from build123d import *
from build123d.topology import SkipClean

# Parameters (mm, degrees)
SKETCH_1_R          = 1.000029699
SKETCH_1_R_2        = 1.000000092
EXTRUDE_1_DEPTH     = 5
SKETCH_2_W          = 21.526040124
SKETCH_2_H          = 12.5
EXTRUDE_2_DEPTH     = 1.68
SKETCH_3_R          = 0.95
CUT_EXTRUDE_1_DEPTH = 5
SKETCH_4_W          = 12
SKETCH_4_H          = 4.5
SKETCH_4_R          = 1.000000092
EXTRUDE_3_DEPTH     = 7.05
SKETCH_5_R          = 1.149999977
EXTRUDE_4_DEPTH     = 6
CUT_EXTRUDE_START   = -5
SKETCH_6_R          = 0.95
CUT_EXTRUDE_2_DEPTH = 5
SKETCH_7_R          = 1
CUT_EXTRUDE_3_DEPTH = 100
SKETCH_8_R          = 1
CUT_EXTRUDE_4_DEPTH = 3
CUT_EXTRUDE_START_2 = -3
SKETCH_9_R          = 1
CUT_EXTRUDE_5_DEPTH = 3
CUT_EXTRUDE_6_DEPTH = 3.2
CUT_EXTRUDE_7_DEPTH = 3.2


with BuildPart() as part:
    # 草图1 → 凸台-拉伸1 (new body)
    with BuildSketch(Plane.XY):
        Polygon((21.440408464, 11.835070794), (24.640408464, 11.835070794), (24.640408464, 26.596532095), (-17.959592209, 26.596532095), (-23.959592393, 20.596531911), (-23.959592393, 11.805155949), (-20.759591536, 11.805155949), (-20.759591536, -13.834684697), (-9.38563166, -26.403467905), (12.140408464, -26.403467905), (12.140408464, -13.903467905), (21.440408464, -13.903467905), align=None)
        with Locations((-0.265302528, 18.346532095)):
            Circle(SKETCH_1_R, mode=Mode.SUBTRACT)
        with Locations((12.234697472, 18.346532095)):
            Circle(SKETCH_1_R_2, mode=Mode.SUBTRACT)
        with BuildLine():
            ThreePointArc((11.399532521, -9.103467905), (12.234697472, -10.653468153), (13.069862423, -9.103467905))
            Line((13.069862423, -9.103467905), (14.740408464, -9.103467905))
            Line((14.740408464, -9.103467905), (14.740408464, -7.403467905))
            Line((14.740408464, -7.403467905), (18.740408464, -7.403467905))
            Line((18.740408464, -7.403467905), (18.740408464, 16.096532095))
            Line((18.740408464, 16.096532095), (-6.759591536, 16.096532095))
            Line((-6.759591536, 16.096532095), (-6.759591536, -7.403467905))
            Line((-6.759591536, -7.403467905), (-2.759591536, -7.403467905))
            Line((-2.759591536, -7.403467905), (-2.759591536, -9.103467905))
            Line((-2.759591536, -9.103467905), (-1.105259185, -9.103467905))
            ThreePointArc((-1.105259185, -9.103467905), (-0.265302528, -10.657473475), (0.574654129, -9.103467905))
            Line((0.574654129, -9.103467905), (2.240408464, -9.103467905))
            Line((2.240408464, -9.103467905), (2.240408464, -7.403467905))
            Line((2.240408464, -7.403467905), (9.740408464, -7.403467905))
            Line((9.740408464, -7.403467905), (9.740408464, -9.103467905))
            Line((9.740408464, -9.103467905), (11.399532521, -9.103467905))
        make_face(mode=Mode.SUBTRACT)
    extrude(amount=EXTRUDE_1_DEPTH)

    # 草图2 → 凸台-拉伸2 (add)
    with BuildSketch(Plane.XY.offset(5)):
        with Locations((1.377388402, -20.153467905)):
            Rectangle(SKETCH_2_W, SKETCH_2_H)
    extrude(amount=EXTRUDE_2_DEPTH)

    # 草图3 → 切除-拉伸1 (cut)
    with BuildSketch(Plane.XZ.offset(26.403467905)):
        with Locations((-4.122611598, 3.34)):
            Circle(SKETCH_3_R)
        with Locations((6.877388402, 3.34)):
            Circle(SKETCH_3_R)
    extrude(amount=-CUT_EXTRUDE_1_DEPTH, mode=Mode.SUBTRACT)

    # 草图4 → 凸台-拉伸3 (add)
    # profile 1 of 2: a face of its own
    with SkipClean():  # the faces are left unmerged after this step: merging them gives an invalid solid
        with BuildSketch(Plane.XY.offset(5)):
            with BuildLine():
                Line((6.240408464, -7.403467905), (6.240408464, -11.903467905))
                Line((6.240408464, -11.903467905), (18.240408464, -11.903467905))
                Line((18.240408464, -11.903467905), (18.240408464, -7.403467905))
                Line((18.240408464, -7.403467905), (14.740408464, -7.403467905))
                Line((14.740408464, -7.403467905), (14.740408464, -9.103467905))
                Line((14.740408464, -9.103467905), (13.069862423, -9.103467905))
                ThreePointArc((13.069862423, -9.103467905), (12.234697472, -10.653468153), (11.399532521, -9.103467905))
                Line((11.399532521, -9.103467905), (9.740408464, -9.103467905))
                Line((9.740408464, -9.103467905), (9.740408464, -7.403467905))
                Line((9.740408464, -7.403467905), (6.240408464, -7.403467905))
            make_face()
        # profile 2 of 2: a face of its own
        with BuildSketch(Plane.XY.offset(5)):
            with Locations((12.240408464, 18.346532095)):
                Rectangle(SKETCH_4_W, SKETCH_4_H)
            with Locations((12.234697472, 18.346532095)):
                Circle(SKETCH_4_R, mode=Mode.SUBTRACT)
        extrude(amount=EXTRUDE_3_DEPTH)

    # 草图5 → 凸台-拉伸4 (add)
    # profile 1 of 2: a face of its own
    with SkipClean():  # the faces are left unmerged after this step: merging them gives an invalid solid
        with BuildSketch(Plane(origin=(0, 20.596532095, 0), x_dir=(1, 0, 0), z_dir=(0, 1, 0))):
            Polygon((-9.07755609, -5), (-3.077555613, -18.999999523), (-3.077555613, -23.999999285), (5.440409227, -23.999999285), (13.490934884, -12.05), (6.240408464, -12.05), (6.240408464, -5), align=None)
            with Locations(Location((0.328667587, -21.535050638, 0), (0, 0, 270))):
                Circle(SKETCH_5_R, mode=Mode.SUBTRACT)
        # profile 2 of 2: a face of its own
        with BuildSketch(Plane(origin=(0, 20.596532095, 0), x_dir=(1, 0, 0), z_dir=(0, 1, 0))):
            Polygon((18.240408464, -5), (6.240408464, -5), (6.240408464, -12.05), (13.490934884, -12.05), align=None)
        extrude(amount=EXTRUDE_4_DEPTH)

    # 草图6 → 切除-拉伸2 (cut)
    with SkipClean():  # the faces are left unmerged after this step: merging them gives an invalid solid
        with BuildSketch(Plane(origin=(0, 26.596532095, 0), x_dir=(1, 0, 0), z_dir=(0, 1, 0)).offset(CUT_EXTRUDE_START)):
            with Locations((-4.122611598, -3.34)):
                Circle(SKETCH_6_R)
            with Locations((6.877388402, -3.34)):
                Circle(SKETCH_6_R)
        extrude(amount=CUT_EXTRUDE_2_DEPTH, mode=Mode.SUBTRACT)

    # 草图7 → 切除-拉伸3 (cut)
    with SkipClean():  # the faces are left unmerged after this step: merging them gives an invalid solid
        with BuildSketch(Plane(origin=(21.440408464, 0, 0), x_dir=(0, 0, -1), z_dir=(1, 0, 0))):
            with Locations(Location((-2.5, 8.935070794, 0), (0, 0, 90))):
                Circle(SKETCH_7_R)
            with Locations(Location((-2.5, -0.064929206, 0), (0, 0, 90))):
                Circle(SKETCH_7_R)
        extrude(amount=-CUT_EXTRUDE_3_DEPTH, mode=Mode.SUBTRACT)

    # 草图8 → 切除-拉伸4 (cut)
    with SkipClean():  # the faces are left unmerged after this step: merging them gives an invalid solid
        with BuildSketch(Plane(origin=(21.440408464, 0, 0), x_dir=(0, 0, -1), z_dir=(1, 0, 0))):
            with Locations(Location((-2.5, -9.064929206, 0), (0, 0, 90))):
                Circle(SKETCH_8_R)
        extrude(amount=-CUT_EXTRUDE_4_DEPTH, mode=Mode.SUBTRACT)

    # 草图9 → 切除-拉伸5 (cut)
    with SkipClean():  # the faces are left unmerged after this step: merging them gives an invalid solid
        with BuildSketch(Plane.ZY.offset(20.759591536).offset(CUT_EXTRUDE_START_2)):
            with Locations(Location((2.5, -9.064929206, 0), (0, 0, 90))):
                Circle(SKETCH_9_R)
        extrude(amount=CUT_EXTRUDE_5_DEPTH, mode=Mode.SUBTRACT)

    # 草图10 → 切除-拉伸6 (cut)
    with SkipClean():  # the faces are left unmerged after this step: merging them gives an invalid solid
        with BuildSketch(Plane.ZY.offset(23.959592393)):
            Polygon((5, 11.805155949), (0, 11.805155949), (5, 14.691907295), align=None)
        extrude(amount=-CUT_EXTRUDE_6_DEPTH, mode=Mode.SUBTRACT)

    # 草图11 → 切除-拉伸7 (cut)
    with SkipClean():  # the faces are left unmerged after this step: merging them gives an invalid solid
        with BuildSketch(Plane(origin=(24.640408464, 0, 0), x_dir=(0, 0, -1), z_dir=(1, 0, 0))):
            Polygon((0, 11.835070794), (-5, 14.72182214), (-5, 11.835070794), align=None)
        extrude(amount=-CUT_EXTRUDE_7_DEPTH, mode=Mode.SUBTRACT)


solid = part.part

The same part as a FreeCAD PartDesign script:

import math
import FreeCAD as App
import Part
import Sketcher
from FreeCAD import Vector
Q = App.Units.Quantity


def add_polygon(sketch, points):
    """Adds a closed chain of lines whose ends are joined by coincident constraints."""
    first, n = sketch.GeometryCount, len(points)
    for a, b in zip(points, points[1:] + points[:1]):
        sketch.addGeometry(Part.LineSegment(App.Vector(*a, 0), App.Vector(*b, 0)), False)
    for i in range(n):
        sketch.addConstraint(Sketcher.Constraint("Coincident", first + i, 2, first + (i + 1) % n, 1))

doc = App.newDocument("Part")
params = doc.addObject("Spreadsheet::Sheet", "Params")
for row, (alias, value) in enumerate([
    ("sketch1_diameter", "2 mm"),
    ("sketch1_width", "4 mm"),
    ("sketch1_width2", "3.2 mm"),
    ("sketch1_width3", "42.600001 mm"),
    ("sketch1_width4", "9.3 mm"),
    ("pad1_length", "5 mm"),
    ("sketch2_height", "12.5 mm"),
    ("pad2_length", "1.68 mm"),
    ("sketch3_diameter", "1.9 mm"),
    ("pocket1_length", "5 mm"),
    ("sketch4_diameter", "2 mm"),
    ("sketch4_width", "12 mm"),
    ("sketch4_width2", "3.5 mm"),
    ("sketch4_height", "4.5 mm"),
    ("sketch4_height2", "1.7 mm"),
    ("pad3_length", "7.05 mm"),
    ("sketch5_diameter", "2.3 mm"),
    ("sketch5_height", "5 mm"),
    ("pad4_length", "6 mm"),
    ("sketch6_diameter", "1.9 mm"),
    ("pocket2_length", "5 mm"),
    ("sketch7_diameter", "2 mm"),
    ("pocket3_length", "100 mm"),
    ("sketch8_diameter", "2 mm"),
    ("pocket4_length", "3 mm"),
    ("sketch9_diameter", "2 mm"),
    ("pocket5_length", "3 mm"),
    ("sketch10_height", "5 mm"),
    ("pocket6_length", "3.2 mm"),
    ("sketch11_height", "5 mm"),
    ("pocket7_length", "3.2 mm"),
], start=1):
    params.set(f"A{row}", alias)
    params.set(f"B{row}", "=" + value)
    params.setAlias(f"B{row}", alias)

body = doc.addObject("PartDesign::Body", "Body")

# Sketch on XY plane
sketch1 = body.newObject("Sketcher::SketchObject", "Sketch")
sketch1.AttachmentSupport = (doc.getObject("XY_Plane"), [""])
sketch1.MapMode = "FlatFace"
add_polygon(sketch1, [(21.440408, 11.835071), (24.640408, 11.835071), (24.640408, 26.596532), (-17.959592, 26.596532), (-23.959592, 20.596532), (-23.959592, 11.805156), (-20.759592, 11.805156), (-20.759592, -13.834685), (-9.385632, -26.403468), (12.140408, -26.403468), (12.140408, -13.903468), (21.440408, -13.903468)])  # lines 0-11
sketch1.addGeometry(Part.ArcOfCircle(Part.Circle(Vector(12.234697, -9.653468, 0), Vector(0, 0, 1), 1), math.radians(146.632996), math.radians(393.367004)), False)  # 12
sketch1.addGeometry(Part.LineSegment(Vector(11.399533, -9.103468, 0), Vector(9.740408, -9.103468, 0)), False)  # 13
sketch1.addGeometry(Part.LineSegment(Vector(9.740408, -9.103468, 0), Vector(9.740408, -7.403468, 0)), False)  # 14
sketch1.addGeometry(Part.LineSegment(Vector(9.740408, -7.403468, 0), Vector(2.240408, -7.403468, 0)), False)  # 15
sketch1.addGeometry(Part.LineSegment(Vector(2.240408, -7.403468, 0), Vector(2.240408, -9.103468, 0)), False)  # 16
sketch1.addGeometry(Part.LineSegment(Vector(2.240408, -9.103468, 0), Vector(0.574654, -9.103468, 0)), False)  # 17
sketch1.addGeometry(Part.ArcOfCircle(Part.Circle(Vector(-0.265303, -9.653468, 0), Vector(0, 0, 1), 1.004006), math.radians(146.783394), math.radians(393.216606)), False)  # 18
sketch1.addGeometry(Part.LineSegment(Vector(-1.105259, -9.103468, 0), Vector(-2.759592, -9.103468, 0)), False)  # 19
sketch1.addGeometry(Part.LineSegment(Vector(-2.759592, -9.103468, 0), Vector(-2.759592, -7.403468, 0)), False)  # 20
sketch1.addGeometry(Part.LineSegment(Vector(-2.759592, -7.403468, 0), Vector(-6.759592, -7.403468, 0)), False)  # 21
sketch1.addGeometry(Part.LineSegment(Vector(-6.759592, -7.403468, 0), Vector(-6.759592, 16.096532, 0)), False)  # 22
sketch1.addGeometry(Part.LineSegment(Vector(-6.759592, 16.096532, 0), Vector(18.740408, 16.096532, 0)), False)  # 23
sketch1.addGeometry(Part.LineSegment(Vector(18.740408, 16.096532, 0), Vector(18.740408, -7.403468, 0)), False)  # 24
sketch1.addGeometry(Part.LineSegment(Vector(18.740408, -7.403468, 0), Vector(14.740408, -7.403468, 0)), False)  # 25
sketch1.addGeometry(Part.LineSegment(Vector(14.740408, -7.403468, 0), Vector(14.740408, -9.103468, 0)), False)  # 26
sketch1.addGeometry(Part.LineSegment(Vector(14.740408, -9.103468, 0), Vector(13.069862, -9.103468, 0)), False)  # 27
sketch1.addGeometry(Part.Circle(Vector(-0.265303, 18.346532, 0), Vector(0, 0, 1), 1.00003), False)  # 28
sketch1.addGeometry(Part.Circle(Vector(12.234697, 18.346532, 0), Vector(0, 0, 1), 1), False)  # 29
sketch1.addConstraint([
    Sketcher.Constraint("Coincident", 12, 1, 13, 1),
    Sketcher.Constraint("Coincident", 13, 2, 14, 1),
    Sketcher.Constraint("Coincident", 14, 2, 15, 1),
    Sketcher.Constraint("Coincident", 15, 2, 16, 1),
    Sketcher.Constraint("Coincident", 16, 2, 17, 1),
    Sketcher.Constraint("Coincident", 17, 2, 18, 2),
    Sketcher.Constraint("Coincident", 18, 1, 19, 1),
    Sketcher.Constraint("Coincident", 19, 2, 20, 1),
    Sketcher.Constraint("Coincident", 20, 2, 21, 1),
    Sketcher.Constraint("Coincident", 21, 2, 22, 1),
    Sketcher.Constraint("Coincident", 22, 2, 23, 1),
    Sketcher.Constraint("Coincident", 23, 2, 24, 1),
    Sketcher.Constraint("Coincident", 24, 2, 25, 1),
    Sketcher.Constraint("Coincident", 25, 2, 26, 1),
    Sketcher.Constraint("Coincident", 26, 2, 27, 1),
    Sketcher.Constraint("Coincident", 27, 2, 12, 2),
    Sketcher.Constraint("Horizontal", 0),
    Sketcher.Constraint("Vertical", 1),
    Sketcher.Constraint("Horizontal", 2),
    Sketcher.Constraint("Vertical", 4),
    Sketcher.Constraint("Horizontal", 5),
    Sketcher.Constraint("Vertical", 6),
    Sketcher.Constraint("Horizontal", 8),
    Sketcher.Constraint("Vertical", 9),
    Sketcher.Constraint("Horizontal", 10),
    Sketcher.Constraint("Vertical", 11),
    Sketcher.Constraint("Horizontal", 13),
    Sketcher.Constraint("Vertical", 14),
    Sketcher.Constraint("Horizontal", 15),
    Sketcher.Constraint("Vertical", 16),
    Sketcher.Constraint("Horizontal", 17),
    Sketcher.Constraint("Horizontal", 19),
    Sketcher.Constraint("Vertical", 20),
    Sketcher.Constraint("Horizontal", 21),
    Sketcher.Constraint("Vertical", 22),
    Sketcher.Constraint("Horizontal", 23),
    Sketcher.Constraint("Vertical", 24),
    Sketcher.Constraint("Horizontal", 25),
    Sketcher.Constraint("Vertical", 26),
    Sketcher.Constraint("Horizontal", 27),
    Sketcher.Constraint("Equal", 12, 29),
    Sketcher.Constraint("Horizontal", 12, 3, 18, 3),
    Sketcher.Constraint("Horizontal", 28, 3, 29, 3),
    Sketcher.Constraint("Horizontal", 13, 2, 16, 2),
    Sketcher.Constraint("Horizontal", 17, 2, 18, 1),
    Sketcher.Constraint("Horizontal", 15, 2, 20, 2),
    Sketcher.Constraint("Horizontal", 21, 2, 24, 2),
    Sketcher.Constraint("Horizontal", 19, 2, 26, 2),
    Sketcher.Constraint("Vertical", 18, 3, 28, 3),
    Sketcher.Constraint("Vertical", 12, 3, 29, 3),
    Sketcher.Constraint("Equal", 0, 5),
    Sketcher.Constraint("Equal", 21, 25),
    Sketcher.Constraint("Diameter", 29, Q("2 mm")),
    Sketcher.Constraint("DistanceX", 21, 2, 21, 1, Q("4 mm")),
    Sketcher.Constraint("Angle", 3, Q("-135 deg")),
    Sketcher.Constraint("DistanceX", 0, 1, 0, 2, Q("3.2 mm")),
    Sketcher.Constraint("DistanceX", 2, 2, 2, 1, Q("42.600001 mm")),
    Sketcher.Constraint("DistanceX", 10, 1, 10, 2, Q("9.3 mm")),
    Sketcher.Constraint("DistanceX", 15, 2, 15, 1, Q("7.5 mm")),
    Sketcher.Constraint("DistanceX", 23, 1, 23, 2, Q("25.5 mm")),
    Sketcher.Constraint("DistanceY", 9, 1, 9, 2, Q("12.5 mm")),
    Sketcher.Constraint("DistanceY", 14, 1, 14, 2, Q("1.7 mm")),
    Sketcher.Constraint("DistanceY", 22, 1, 22, 2, Q("23.5 mm")),
    Sketcher.Constraint("DistanceY", 18, 3, 28, 3, Q("28 mm")),
    Sketcher.Constraint("DistanceX", 3, 2, 2, 2, Q("6 mm")),
    Sketcher.Constraint("DistanceX", 19, 2, 16, 2, Q("5 mm")),
    Sketcher.Constraint("DistanceX", 5, 2, 22, 2, Q("14 mm")),
    Sketcher.Constraint("DistanceX", 18, 3, 12, 3, Q("12.5 mm")),
    Sketcher.Constraint("DistanceY", 9, 2, 12, 1, Q("4.8 mm")),
    Sketcher.Constraint("DistanceY", 22, 2, 2, 2, Q("10.5 mm")),
    Sketcher.Constraint("Diameter", 28, Q("2.000059 mm")),
    Sketcher.Constraint("DistanceY", 29, 3, 1, 2, Q("8.25 mm")),
    Sketcher.Constraint("Radius", 18, Q("1.004006 mm")),
    Sketcher.Constraint("DistanceX", 8, 1, 8, 2, Q("21.52604 mm")),
    Sketcher.Constraint("DistanceY", 1, 1, 1, 2, Q("14.761461 mm")),
    Sketcher.Constraint("DistanceY", 6, 2, 6, 1, Q("25.639841 mm")),
    Sketcher.Constraint("DistanceX", 13, 2, 13, 1, Q("1.659124 mm")),
    Sketcher.Constraint("DistanceY", 4, 2, 4, 1, Q("8.791376 mm")),
    Sketcher.Constraint("DistanceX", -1, 1, 0, 2, Q("24.640408 mm")),
    Sketcher.Constraint("DistanceY", -1, 1, 0, 2, Q("11.835071 mm")),
])
sketch1.setExpression("Constraints[64]", "Params.sketch1_diameter")
sketch1.setExpression("Constraints[65]", "Params.sketch1_width")
sketch1.setExpression("Constraints[67]", "Params.sketch1_width2")
sketch1.setExpression("Constraints[68]", "Params.sketch1_width3")
sketch1.setExpression("Constraints[69]", "Params.sketch1_width4")
pad1 = body.newObject("PartDesign::Pad", "Pad")
pad1.Profile = sketch1
pad1.setExpression("Length", "Params.pad1_length")

# Sketch on XY plane
sketch2 = body.newObject("Sketcher::SketchObject", "Sketch001")
sketch2.AttachmentSupport = (doc.getObject("XY_Plane"), [""])
sketch2.MapMode = "FlatFace"
sketch2.AttachmentOffset = App.Placement(Vector(0, 0, 5), App.Rotation())
add_polygon(sketch2, [(-9.385632, -13.903468), (-9.385632, -26.403468), (12.140408, -26.403468), (12.140408, -13.903468)])  # lines 0-3
sketch2.addConstraint([
    Sketcher.Constraint("Vertical", 0),
    Sketcher.Constraint("Horizontal", 1),
    Sketcher.Constraint("Vertical", 2),
    Sketcher.Constraint("Horizontal", 3),
    Sketcher.Constraint("DistanceY", 0, 2, 0, 1, Q("12.5 mm")),
    Sketcher.Constraint("DistanceX", 1, 1, 1, 2, Q("21.52604 mm")),
    Sketcher.Constraint("DistanceX", 0, 2, -1, 1, Q("9.385632 mm")),
    Sketcher.Constraint("DistanceY", 0, 2, -1, 1, Q("26.403468 mm")),
])
sketch2.setExpression("Constraints[8]", "Params.sketch2_height")
pad2 = body.newObject("PartDesign::Pad", "Pad001")
pad2.Profile = sketch2
pad2.setExpression("Length", "Params.pad2_length")

# Sketch on XZ plane
sketch3 = body.newObject("Sketcher::SketchObject", "Sketch002")
sketch3.AttachmentSupport = (doc.getObject("XZ_Plane"), [""])
sketch3.MapMode = "FlatFace"
sketch3.AttachmentOffset = App.Placement(Vector(0, 0, 26.403468), App.Rotation())
sketch3.addGeometry([
    Part.Circle(Vector(-4.122612, 3.34, 0), Vector(0, 0, 1), 0.95),
    Part.Circle(Vector(6.877388, 3.34, 0), Vector(0, 0, 1), 0.95),
], False)
sketch3.addConstraint([
    Sketcher.Constraint("Equal", 0, 1),
    Sketcher.Constraint("Horizontal", 0, 3, 1, 3),
    Sketcher.Constraint("Diameter", 0, Q("1.9 mm")),
    Sketcher.Constraint("DistanceX", 0, 3, 1, 3, Q("11 mm")),
    Sketcher.Constraint("DistanceY", -1, 1, 0, 3, Q("3.34 mm")),
    Sketcher.Constraint("DistanceX", 0, 3, -1, 1, Q("4.122612 mm")),
])
sketch3.setExpression("Constraints[2]", "Params.sketch3_diameter")
pocket1 = body.newObject("PartDesign::Pocket", "Pocket")
pocket1.Profile = sketch3
pocket1.setExpression("Length", "Params.pocket1_length")

# Sketch on XY plane
sketch4 = body.newObject("Sketcher::SketchObject", "Sketch003")
sketch4.AttachmentSupport = (doc.getObject("XY_Plane"), [""])
sketch4.MapMode = "FlatFace"
sketch4.AttachmentOffset = App.Placement(Vector(0, 0, 5), App.Rotation())
sketch4.addGeometry(Part.LineSegment(Vector(6.240408, -7.403468, 0), Vector(6.240408, -11.903468, 0)), False)  # 0
sketch4.addGeometry(Part.LineSegment(Vector(6.240408, -11.903468, 0), Vector(18.240408, -11.903468, 0)), False)  # 1
sketch4.addGeometry(Part.LineSegment(Vector(18.240408, -11.903468, 0), Vector(18.240408, -7.403468, 0)), False)  # 2
sketch4.addGeometry(Part.LineSegment(Vector(18.240408, -7.403468, 0), Vector(14.740408, -7.403468, 0)), False)  # 3
sketch4.addGeometry(Part.LineSegment(Vector(14.740408, -7.403468, 0), Vector(14.740408, -9.103468, 0)), False)  # 4
sketch4.addGeometry(Part.LineSegment(Vector(14.740408, -9.103468, 0), Vector(13.069862, -9.103468, 0)), False)  # 5
sketch4.addGeometry(Part.ArcOfCircle(Part.Circle(Vector(12.234697, -9.653468, 0), Vector(0, 0, 1), 1), math.radians(146.632996), math.radians(393.367004)), False)  # 6
sketch4.addGeometry(Part.LineSegment(Vector(11.399533, -9.103468, 0), Vector(9.740408, -9.103468, 0)), False)  # 7
sketch4.addGeometry(Part.LineSegment(Vector(9.740408, -9.103468, 0), Vector(9.740408, -7.403468, 0)), False)  # 8
sketch4.addGeometry(Part.LineSegment(Vector(9.740408, -7.403468, 0), Vector(6.240408, -7.403468, 0)), False)  # 9
add_polygon(sketch4, [(6.240408, 20.596532), (6.240408, 16.096532), (18.240408, 16.096532), (18.240408, 20.596532)])  # lines 10-13
sketch4.addGeometry(Part.Circle(Vector(12.234697, 18.346532, 0), Vector(0, 0, 1), 1), False)  # 14
sketch4.addConstraint([
    Sketcher.Constraint("Coincident", 0, 2, 1, 1),
    Sketcher.Constraint("Coincident", 1, 2, 2, 1),
    Sketcher.Constraint("Coincident", 2, 2, 3, 1),
    Sketcher.Constraint("Coincident", 3, 2, 4, 1),
    Sketcher.Constraint("Coincident", 4, 2, 5, 1),
    Sketcher.Constraint("Coincident", 5, 2, 6, 2),
    Sketcher.Constraint("Coincident", 6, 1, 7, 1),
    Sketcher.Constraint("Coincident", 7, 2, 8, 1),
    Sketcher.Constraint("Coincident", 8, 2, 9, 1),
    Sketcher.Constraint("Coincident", 9, 2, 0, 1),
    Sketcher.Constraint("Vertical", 0),
    Sketcher.Constraint("Horizontal", 1),
    Sketcher.Constraint("Vertical", 2),
    Sketcher.Constraint("Horizontal", 3),
    Sketcher.Constraint("Vertical", 4),
    Sketcher.Constraint("Horizontal", 5),
    Sketcher.Constraint("Horizontal", 7),
    Sketcher.Constraint("Vertical", 8),
    Sketcher.Constraint("Horizontal", 9),
    Sketcher.Constraint("Vertical", 10),
    Sketcher.Constraint("Horizontal", 11),
    Sketcher.Constraint("Vertical", 12),
    Sketcher.Constraint("Horizontal", 13),
    Sketcher.Constraint("Equal", 6, 14),
    Sketcher.Constraint("Horizontal", 5, 2, 6, 1),
    Sketcher.Constraint("Horizontal", 3, 2, 8, 2),
    Sketcher.Constraint("Vertical", 6, 3, 14, 3),
    Sketcher.Constraint("Vertical", 9, 2, 10, 2),
    Sketcher.Constraint("Vertical", 2, 2, 11, 2),
    Sketcher.Constraint("Equal", 3, 9),
    Sketcher.Constraint("Equal", 2, 10),
    Sketcher.Constraint("Diameter", 14, Q("2 mm")),
    Sketcher.Constraint("DistanceX", 1, 1, 1, 2, Q("12 mm")),
    Sketcher.Constraint("DistanceX", 3, 2, 3, 1, Q("3.5 mm")),
    Sketcher.Constraint("DistanceY", 0, 2, 0, 1, Q("4.5 mm")),
    Sketcher.Constraint("DistanceY", 4, 2, 4, 1, Q("1.7 mm")),
    Sketcher.Constraint("DistanceY", 6, 3, 14, 3, Q("28 mm")),
    Sketcher.Constraint("DistanceY", 2, 2, 12, 2, Q("28 mm")),
    Sketcher.Constraint("DistanceY", 0, 2, 6, 3, Q("2.25 mm")),
    Sketcher.Constraint("DistanceX", 5, 2, 5, 1, Q("1.670546 mm")),
    Sketcher.Constraint("DistanceX", -1, 1, 0, 2, Q("6.240408 mm")),
    Sketcher.Constraint("DistanceY", 6, 3, -1, 1, Q("9.653468 mm")),
])
sketch4.setExpression("Constraints[35]", "Params.sketch4_diameter")
sketch4.setExpression("Constraints[36]", "Params.sketch4_width")
sketch4.setExpression("Constraints[37]", "Params.sketch4_width2")
sketch4.setExpression("Constraints[38]", "Params.sketch4_height")
sketch4.setExpression("Constraints[39]", "Params.sketch4_height2")
pad3 = body.newObject("PartDesign::Pad", "Pad002")
pad3.Profile = sketch4
pad3.setExpression("Length", "Params.pad3_length")

# Sketch on XZ plane
sketch5 = body.newObject("Sketcher::SketchObject", "Sketch004")
sketch5.AttachmentSupport = (doc.getObject("XZ_Plane"), [""])
sketch5.MapMode = "FlatFace"
sketch5.AttachmentOffset = App.Placement(Vector(0, 0, -20.596532), App.Rotation())
add_polygon(sketch5, [(-9.077556, 5), (-3.077556, 19), (-3.077556, 23.999999), (5.440409, 23.999999), (13.490935, 12.05), (18.240408, 5)])  # lines 0-5
sketch5.addGeometry(Part.Circle(Vector(0.328668, 21.535051, 0), Vector(0, 0, 1), 1.15), False)  # 6
sketch5.addConstraint([
    Sketcher.Constraint("Vertical", 1),
    Sketcher.Constraint("Horizontal", 2),
    Sketcher.Constraint("Horizontal", 5),
    Sketcher.Constraint("Parallel", 3, 4),
    Sketcher.Constraint("Diameter", 6, Q("2.3 mm")),
    Sketcher.Constraint("DistanceY", 1, 1, 1, 2, Q("5 mm")),
    Sketcher.Constraint("DistanceY", -1, 1, 0, 2, Q("19 mm")),
    Sketcher.Constraint("DistanceY", -1, 1, 4, 2, Q("5 mm")),
    Sketcher.Constraint("DistanceX", 5, 2, 0, 2, Q("6 mm")),
    Sketcher.Constraint("DistanceX", 2, 2, 4, 2, Q("12.799999 mm")),
    Sketcher.Constraint("DistanceY", -1, 1, 3, 2, Q("12.05 mm")),
    Sketcher.Constraint("DistanceX", 2, 1, 2, 2, Q("8.517965 mm")),
    Sketcher.Constraint("DistanceY", -1, 1, 6, 3, Q("21.535051 mm")),
    Sketcher.Constraint("DistanceX", -1, 1, 2, 2, Q("5.440409 mm")),
    Sketcher.Constraint("DistanceX", 6, 3, 2, 2, Q("5.111742 mm")),
])
sketch5.setExpression("Constraints[10]", "Params.sketch5_diameter")
sketch5.setExpression("Constraints[11]", "Params.sketch5_height")
pad4 = body.newObject("PartDesign::Pad", "Pad003")
pad4.Profile = sketch5
pad4.setExpression("Length", "Params.pad4_length")
pad4.Reversed = True

# Sketch on XZ plane
sketch6 = body.newObject("Sketcher::SketchObject", "Sketch005")
sketch6.AttachmentSupport = (doc.getObject("XZ_Plane"), [""])
sketch6.MapMode = "FlatFace"
sketch6.AttachmentOffset = App.Placement(Vector(0, 0, -21.596532), App.Rotation())
sketch6.addGeometry([
    Part.Circle(Vector(-4.122612, 3.34, 0), Vector(0, 0, 1), 0.95),
    Part.Circle(Vector(6.877388, 3.34, 0), Vector(0, 0, 1), 0.95),
], False)
sketch6.addConstraint([
    Sketcher.Constraint("Equal", 0, 1),
    Sketcher.Constraint("Horizontal", 0, 3, 1, 3),
    Sketcher.Constraint("Diameter", 0, Q("1.9 mm")),
    Sketcher.Constraint("DistanceX", 0, 3, 1, 3, Q("11 mm")),
    Sketcher.Constraint("DistanceY", -1, 1, 0, 3, Q("3.34 mm")),
    Sketcher.Constraint("DistanceX", 0, 3, -1, 1, Q("4.122612 mm")),
])
sketch6.setExpression("Constraints[2]", "Params.sketch6_diameter")
pocket2 = body.newObject("PartDesign::Pocket", "Pocket001")
pocket2.Profile = sketch6
pocket2.setExpression("Length", "Params.pocket2_length")

# Sketch on YZ plane
sketch7 = body.newObject("Sketcher::SketchObject", "Sketch006")
sketch7.AttachmentSupport = (doc.getObject("YZ_Plane"), [""])
sketch7.MapMode = "FlatFace"
sketch7.AttachmentOffset = App.Placement(Vector(0, 0, 21.440408), App.Rotation())
sketch7.addGeometry([
    Part.Circle(Vector(8.935071, 2.5, 0), Vector(0, 0, 1), 1),
    Part.Circle(Vector(-0.064929, 2.5, 0), Vector(0, 0, 1), 1),
], False)
sketch7.addConstraint([
    Sketcher.Constraint("Equal", 0, 1),
    Sketcher.Constraint("Horizontal", 0, 3, 1, 3),
    Sketcher.Constraint("Diameter", 0, Q("2 mm")),
    Sketcher.Constraint("DistanceX", 1, 3, 0, 3, Q("9 mm")),
    Sketcher.Constraint("DistanceY", -1, 1, 0, 3, Q("2.5 mm")),
    Sketcher.Constraint("DistanceX", -1, 1, 0, 3, Q("8.935071 mm")),
])
sketch7.setExpression("Constraints[2]", "Params.sketch7_diameter")
pocket3 = body.newObject("PartDesign::Pocket", "Pocket002")
pocket3.Profile = sketch7
pocket3.setExpression("Length", "Params.pocket3_length")

# Sketch on YZ plane
sketch8 = body.newObject("Sketcher::SketchObject", "Sketch007")
sketch8.AttachmentSupport = (doc.getObject("YZ_Plane"), [""])
sketch8.MapMode = "FlatFace"
sketch8.AttachmentOffset = App.Placement(Vector(0, 0, 21.440408), App.Rotation())
sketch8.addGeometry(Part.Circle(Vector(-9.064929, 2.5, 0), Vector(0, 0, 1), 1), False)
sketch8.addConstraint([
    Sketcher.Constraint("Diameter", 0, Q("2 mm")),
    Sketcher.Constraint("DistanceY", -1, 1, 0, 3, Q("2.5 mm")),
    Sketcher.Constraint("DistanceX", 0, 3, -1, 1, Q("9.064929 mm")),
])
sketch8.setExpression("Constraints[0]", "Params.sketch8_diameter")
pocket4 = body.newObject("PartDesign::Pocket", "Pocket003")
pocket4.Profile = sketch8
pocket4.setExpression("Length", "Params.pocket4_length")

# Sketch on YZ plane
sketch9 = body.newObject("Sketcher::SketchObject", "Sketch008")
sketch9.AttachmentSupport = (doc.getObject("YZ_Plane"), [""])
sketch9.MapMode = "FlatFace"
sketch9.AttachmentOffset = App.Placement(Vector(0, 0, -17.759592), App.Rotation())
sketch9.addGeometry(Part.Circle(Vector(-9.064929, 2.5, 0), Vector(0, 0, 1), 1), False)
sketch9.addConstraint([
    Sketcher.Constraint("Diameter", 0, Q("2 mm")),
    Sketcher.Constraint("DistanceY", -1, 1, 0, 3, Q("2.5 mm")),
    Sketcher.Constraint("DistanceX", 0, 3, -1, 1, Q("9.064929 mm")),
])
sketch9.setExpression("Constraints[0]", "Params.sketch9_diameter")
pocket5 = body.newObject("PartDesign::Pocket", "Pocket004")
pocket5.Profile = sketch9
pocket5.setExpression("Length", "Params.pocket5_length")

# Sketch on YZ plane
sketch10 = body.newObject("Sketcher::SketchObject", "Sketch009")
sketch10.AttachmentSupport = (doc.getObject("YZ_Plane"), [""])
sketch10.MapMode = "FlatFace"
sketch10.AttachmentOffset = App.Placement(Vector(0, 0, -23.959592), App.Rotation())
add_polygon(sketch10, [(11.805156, 0), (11.805156, 5), (14.691907, 5)])  # lines 0-2
sketch10.addConstraint([
    Sketcher.Constraint("Vertical", 0),
    Sketcher.Constraint("Horizontal", 1),
    Sketcher.Constraint("PointOnObject", 2, 2, -1),
    Sketcher.Constraint("DistanceY", 0, 1, 0, 2, Q("5 mm")),
    Sketcher.Constraint("Angle", 2, Q("-120 deg")),
    Sketcher.Constraint("DistanceX", -1, 1, 0, 2, Q("11.805156 mm")),
])
sketch10.setExpression("Constraints[6]", "Params.sketch10_height")
pocket6 = body.newObject("PartDesign::Pocket", "Pocket005")
pocket6.Profile = sketch10
pocket6.setExpression("Length", "Params.pocket6_length")
pocket6.Reversed = True

# Sketch on YZ plane
sketch11 = body.newObject("Sketcher::SketchObject", "Sketch010")
sketch11.AttachmentSupport = (doc.getObject("YZ_Plane"), [""])
sketch11.MapMode = "FlatFace"
sketch11.AttachmentOffset = App.Placement(Vector(0, 0, 24.640408), App.Rotation())
add_polygon(sketch11, [(11.835071, 0), (14.721822, 5), (11.835071, 5)])  # lines 0-2
sketch11.addConstraint([
    Sketcher.Constraint("Horizontal", 1),
    Sketcher.Constraint("Vertical", 2),
    Sketcher.Constraint("PointOnObject", 2, 2, -1),
    Sketcher.Constraint("DistanceY", 2, 2, 2, 1, Q("5 mm")),
    Sketcher.Constraint("Angle", 0, Q("60 deg")),
    Sketcher.Constraint("DistanceX", -1, 1, 1, 2, Q("11.835071 mm")),
])
sketch11.setExpression("Constraints[6]", "Params.sketch11_height")
pocket7 = body.newObject("PartDesign::Pocket", "Pocket006")
pocket7.Profile = sketch11
pocket7.setExpression("Length", "Params.pocket7_length")

doc.recompute()
